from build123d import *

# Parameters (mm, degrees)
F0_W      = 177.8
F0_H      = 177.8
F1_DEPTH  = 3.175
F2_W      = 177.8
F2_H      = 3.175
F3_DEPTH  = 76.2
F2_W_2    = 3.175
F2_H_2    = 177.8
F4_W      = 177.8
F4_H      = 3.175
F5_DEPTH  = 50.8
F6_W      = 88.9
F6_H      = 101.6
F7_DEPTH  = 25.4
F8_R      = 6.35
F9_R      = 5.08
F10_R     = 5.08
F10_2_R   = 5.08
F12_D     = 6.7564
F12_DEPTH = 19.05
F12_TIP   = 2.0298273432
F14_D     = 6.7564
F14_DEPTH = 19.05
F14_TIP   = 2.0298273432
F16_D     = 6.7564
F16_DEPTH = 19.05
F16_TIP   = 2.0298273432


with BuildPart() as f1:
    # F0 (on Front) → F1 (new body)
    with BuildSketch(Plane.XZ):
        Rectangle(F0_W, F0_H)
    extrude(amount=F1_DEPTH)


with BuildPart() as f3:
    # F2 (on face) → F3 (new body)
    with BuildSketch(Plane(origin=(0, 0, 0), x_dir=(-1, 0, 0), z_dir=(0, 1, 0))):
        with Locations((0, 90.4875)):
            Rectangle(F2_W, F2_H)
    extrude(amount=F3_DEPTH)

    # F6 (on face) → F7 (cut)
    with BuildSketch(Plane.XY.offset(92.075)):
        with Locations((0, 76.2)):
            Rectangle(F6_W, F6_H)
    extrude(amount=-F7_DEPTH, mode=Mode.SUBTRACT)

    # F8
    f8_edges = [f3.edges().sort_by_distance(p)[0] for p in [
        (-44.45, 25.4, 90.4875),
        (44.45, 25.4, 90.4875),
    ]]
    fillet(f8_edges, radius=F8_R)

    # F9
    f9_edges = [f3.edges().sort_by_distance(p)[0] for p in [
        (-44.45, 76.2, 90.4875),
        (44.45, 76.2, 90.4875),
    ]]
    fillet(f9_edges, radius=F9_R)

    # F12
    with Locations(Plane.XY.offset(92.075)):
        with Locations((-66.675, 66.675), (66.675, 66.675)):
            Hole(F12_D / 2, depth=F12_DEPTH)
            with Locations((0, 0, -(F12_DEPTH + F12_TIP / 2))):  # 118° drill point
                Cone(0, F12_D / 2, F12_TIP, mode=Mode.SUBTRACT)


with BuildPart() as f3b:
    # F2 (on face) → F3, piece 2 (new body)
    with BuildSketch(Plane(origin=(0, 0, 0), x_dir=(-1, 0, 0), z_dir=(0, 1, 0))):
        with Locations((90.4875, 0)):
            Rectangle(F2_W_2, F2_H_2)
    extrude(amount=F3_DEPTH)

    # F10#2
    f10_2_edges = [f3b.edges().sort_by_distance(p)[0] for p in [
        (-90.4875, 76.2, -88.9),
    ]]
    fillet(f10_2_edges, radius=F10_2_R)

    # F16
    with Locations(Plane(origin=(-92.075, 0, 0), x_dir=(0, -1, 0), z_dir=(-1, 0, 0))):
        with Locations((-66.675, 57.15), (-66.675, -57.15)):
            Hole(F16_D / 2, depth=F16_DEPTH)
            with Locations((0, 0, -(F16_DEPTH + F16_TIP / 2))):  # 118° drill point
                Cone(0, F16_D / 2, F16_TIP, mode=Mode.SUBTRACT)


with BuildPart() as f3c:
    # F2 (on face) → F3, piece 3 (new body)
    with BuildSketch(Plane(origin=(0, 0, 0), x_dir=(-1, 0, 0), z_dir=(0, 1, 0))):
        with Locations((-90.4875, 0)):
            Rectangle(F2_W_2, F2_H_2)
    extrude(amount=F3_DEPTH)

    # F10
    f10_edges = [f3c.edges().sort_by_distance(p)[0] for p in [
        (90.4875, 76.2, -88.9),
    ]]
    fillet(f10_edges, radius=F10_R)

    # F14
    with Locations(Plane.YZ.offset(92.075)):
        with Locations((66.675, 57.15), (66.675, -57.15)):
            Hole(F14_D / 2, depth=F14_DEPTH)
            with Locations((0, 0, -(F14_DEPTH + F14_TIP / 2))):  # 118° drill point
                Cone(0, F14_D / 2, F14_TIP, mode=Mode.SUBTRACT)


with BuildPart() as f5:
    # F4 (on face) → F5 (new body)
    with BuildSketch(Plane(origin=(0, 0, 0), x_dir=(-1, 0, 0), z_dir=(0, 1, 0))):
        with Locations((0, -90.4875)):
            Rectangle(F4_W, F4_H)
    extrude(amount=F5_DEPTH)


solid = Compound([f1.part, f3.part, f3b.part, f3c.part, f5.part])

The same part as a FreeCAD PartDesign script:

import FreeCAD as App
import Part
import Sketcher
from FreeCAD import Vector
Q = App.Units.Quantity


def edges_at(feature, points):
    """Names of the edges that pass closest to the given points."""
    edges = feature.Shape.Edges
    near = lambda p: min(range(len(edges)), key=lambda i: edges[i].distToShape(Part.Vertex(*p))[0])
    return sorted({f"Edge{near(p) + 1}" for p in points})

doc = App.newDocument("Part")
body = doc.addObject("PartDesign::Body", "Body")

# Sketch on XZ plane
sketch1 = doc.addObject("Sketcher::SketchObject", "Sketch")
body.addObject(sketch1)
sketch1.AttachmentSupport = (doc.XZ_Plane, [""])
sketch1.MapMode = "FlatFace"
sketch1.addGeometry([
    Part.LineSegment(Vector(-89, 89, 0), Vector(-89, -89, 0)),
    Part.LineSegment(Vector(-89, -89, 0), Vector(89, -89, 0)),
    Part.LineSegment(Vector(89, -89, 0), Vector(89, 89, 0)),
    Part.LineSegment(Vector(89, 89, 0), Vector(-89, 89, 0)),
], False)
sketch1.addConstraint([
    Sketcher.Constraint("Coincident", 0, 2, 1, 1),
    Sketcher.Constraint("Coincident", 1, 2, 2, 1),
    Sketcher.Constraint("Coincident", 2, 2, 3, 1),
    Sketcher.Constraint("Coincident", 3, 2, 0, 1),
    Sketcher.Constraint("Vertical", 0),
    Sketcher.Constraint("Horizontal", 1),
    Sketcher.Constraint("Vertical", 2),
    Sketcher.Constraint("Horizontal", 3),
    Sketcher.Constraint("Symmetric", 0, 2, 2, 2, -1, 1),
    Sketcher.Constraint("Equal", 3, 0),
    Sketcher.Constraint("DistanceX", 1, 1, 1, 2, Q("7 in")),
])
pad1 = doc.addObject("PartDesign::Pad", "Pad")
body.addObject(pad1)
pad1.Profile = sketch1
pad1.Length = Q("0.125 in")
body2 = doc.addObject("PartDesign::Body", "Body001")

# Sketch on XZ plane
sketch2 = doc.addObject("Sketcher::SketchObject", "Sketch001")
body2.addObject(sketch2)
sketch2.AttachmentSupport = (doc.getObject("XZ_Plane001"), [""])
sketch2.MapMode = "FlatFace"
sketch2.addGeometry([
    Part.LineSegment(Vector(88.9, 92.1, 0), Vector(88.9, 88.9, 0)),
    Part.LineSegment(Vector(88.9, 88.9, 0), Vector(-88.9, 88.9, 0)),
    Part.LineSegment(Vector(-88.9, 88.9, 0), Vector(-88.9, 92.1, 0)),
    Part.LineSegment(Vector(-88.9, 92.1, 0), Vector(88.9, 92.1, 0)),
], False)
sketch2.addConstraint([
    Sketcher.Constraint("Coincident", 0, 2, 1, 1),
    Sketcher.Constraint("Coincident", 1, 2, 2, 1),
    Sketcher.Constraint("Coincident", 2, 2, 3, 1),
    Sketcher.Constraint("Coincident", 3, 2, 0, 1),
    Sketcher.Constraint("Vertical", 0),
    Sketcher.Constraint("Horizontal", 1),
    Sketcher.Constraint("Vertical", 2),
    Sketcher.Constraint("Horizontal", 3),
    Sketcher.Constraint("DistanceX", 1, 2, 1, 1, Q("7 in")),
    Sketcher.Constraint("DistanceX", -1, 1, 0, 2, Q("3.5 in")),
    Sketcher.Constraint("DistanceY", -1, 1, 0, 2, Q("3.5 in")),
    Sketcher.Constraint("DistanceY", 0, 2, 0, 1, Q("0.125 in")),
])
pad2 = doc.addObject("PartDesign::Pad", "Pad001")
body2.addObject(pad2)
pad2.Profile = sketch2
pad2.Length = Q("3 in")
pad2.Reversed = True

# Sketch on XY plane
sketch3 = doc.addObject("Sketcher::SketchObject", "Sketch002")
body2.addObject(sketch3)
sketch3.AttachmentSupport = (doc.getObject("XY_Plane001"), [""])
sketch3.MapMode = "FlatFace"
sketch3.AttachmentOffset = App.Placement(Vector(0, 0, 3.625 * 25.4), App.Rotation())
sketch3.addGeometry([
    Part.LineSegment(Vector(-44, 127, 0), Vector(-44, 25, 0)),
    Part.LineSegment(Vector(-44, 25, 0), Vector(44, 25, 0)),
    Part.LineSegment(Vector(44, 25, 0), Vector(44, 127, 0)),
    Part.LineSegment(Vector(44, 127, 0), Vector(-44, 127, 0)),
], False)
sketch3.addConstraint([
    Sketcher.Constraint("Coincident", 0, 2, 1, 1),
    Sketcher.Constraint("Coincident", 1, 2, 2, 1),
    Sketcher.Constraint("Coincident", 2, 2, 3, 1),
    Sketcher.Constraint("Coincident", 3, 2, 0, 1),
    Sketcher.Constraint("Vertical", 0),
    Sketcher.Constraint("Horizontal", 1),
    Sketcher.Constraint("Vertical", 2),
    Sketcher.Constraint("Horizontal", 3),
    Sketcher.Constraint("DistanceY", 0, 2, 0, 1, Q("4 in")),
    Sketcher.Constraint("DistanceX", 1, 1, 1, 2, Q("3.5 in")),
    Sketcher.Constraint("DistanceY", -1, 1, 0, 2, Q("1 in")),
    Sketcher.Constraint("DistanceX", 0, 2, -1, 1, Q("1.75 in")),
])
pocket1 = doc.addObject("PartDesign::Pocket", "Pocket")
body2.addObject(pocket1)
pocket1.Profile = sketch3
pocket1.Length = Q("1 in")
doc.recompute()

fillet = doc.addObject("PartDesign::Fillet", "Fillet")
body2.addObject(fillet)
fillet.Base = (pocket1, edges_at(pocket1, [(-44.45, 25.4, 90.487), (44.45, 25.4, 90.487)]))
fillet.Radius = Q("0.25 in")
doc.recompute()

fillet2 = doc.addObject("PartDesign::Fillet", "Fillet001")
body2.addObject(fillet2)
fillet2.Base = (fillet, edges_at(fillet, [(-44.45, 76.2, 90.487), (44.45, 76.2, 90.487)]))
fillet2.Radius = Q("0.2 in")

# Sketch on XY plane
sketch4 = doc.addObject("Sketcher::SketchObject", "Sketch003")
body2.addObject(sketch4)
sketch4.AttachmentSupport = (doc.getObject("XY_Plane001"), [""])
sketch4.MapMode = "FlatFace"
sketch4.AttachmentOffset = App.Placement(Vector(0, 0, 3.625 * 25.4), App.Rotation())
sketch4.addGeometry([
    Part.Circle(Vector(-66.7, 66.7, 0), Vector(0, 0, 1), 3.4),
    Part.Circle(Vector(66.7, 66.7, 0), Vector(0, 0, 1), 3.4),
], False)
sketch4.addConstraint([
    Sketcher.Constraint("Equal", 0, 1),
    Sketcher.Constraint("Symmetric", 0, 3, 1, 3, -2),
    Sketcher.Constraint("Diameter", 0, Q("0.266 in")),
    Sketcher.Constraint("DistanceX", 0, 3, 1, 3, Q("5.25 in")),
    Sketcher.Constraint("DistanceY", -1, 1, 0, 3, Q("2.625 in")),
])
doc.recompute()
hole = doc.addObject("PartDesign::Hole", "Hole")
body2.addObject(hole)
hole.Profile = sketch4
hole.ThreadType = "None"
hole.Diameter = Q("0.266 in")
hole.DepthType = "Dimension"
hole.Depth = Q("0.75 in")
hole.DrillPoint = "Angled"
hole.DrillPointAngle = 118
body3 = doc.addObject("PartDesign::Body", "Body002")

# Sketch on XZ plane
sketch5 = doc.addObject("Sketcher::SketchObject", "Sketch004")
body3.addObject(sketch5)
sketch5.AttachmentSupport = (doc.getObject("XZ_Plane002"), [""])
sketch5.MapMode = "FlatFace"
sketch5.addGeometry([
    Part.LineSegment(Vector(-88.9, 88.9, 0), Vector(-88.9, -88.9, 0)),
    Part.LineSegment(Vector(-88.9, -88.9, 0), Vector(-92.1, -88.9, 0)),
    Part.LineSegment(Vector(-92.1, -88.9, 0), Vector(-92.1, 88.9, 0)),
    Part.LineSegment(Vector(-92.1, 88.9, 0), Vector(-88.9, 88.9, 0)),
], False)
sketch5.addConstraint([
    Sketcher.Constraint("Coincident", 0, 2, 1, 1),
    Sketcher.Constraint("Coincident", 1, 2, 2, 1),
    Sketcher.Constraint("Coincident", 2, 2, 3, 1),
    Sketcher.Constraint("Coincident", 3, 2, 0, 1),
    Sketcher.Constraint("Vertical", 0),
    Sketcher.Constraint("Horizontal", 1),
    Sketcher.Constraint("Vertical", 2),
    Sketcher.Constraint("Horizontal", 3),
    Sketcher.Constraint("DistanceY", 0, 2, 0, 1, Q("7 in")),
    Sketcher.Constraint("DistanceX", 0, 2, -1, 1, Q("3.5 in")),
    Sketcher.Constraint("DistanceY", 0, 2, -1, 1, Q("3.5 in")),
    Sketcher.Constraint("DistanceX", 1, 2, 1, 1, Q("0.125 in")),
])
pad3 = doc.addObject("PartDesign::Pad", "Pad002")
body3.addObject(pad3)
pad3.Profile = sketch5
pad3.Length = Q("3 in")
pad3.Reversed = True
doc.recompute()

fillet3 = doc.addObject("PartDesign::Fillet", "Fillet002")
body3.addObject(fillet3)
fillet3.Base = (pad3, edges_at(pad3, [(-90.487, 76.2, -88.9)]))
fillet3.Radius = Q("0.2 in")

# Sketch on YZ plane
sketch6 = doc.addObject("Sketcher::SketchObject", "Sketch005")
body3.addObject(sketch6)
sketch6.AttachmentSupport = (doc.getObject("YZ_Plane002"), [""])
sketch6.MapMode = "FlatFace"
sketch6.AttachmentOffset = App.Placement(Vector(0, 0, -3.625 * 25.4), App.Rotation())
sketch6.addGeometry([
    Part.Circle(Vector(66.7, 57.1, 0), Vector(0, 0, 1), 3.4),
    Part.Circle(Vector(66.7, -57.1, 0), Vector(0, 0, 1), 3.4),
], False)
sketch6.addConstraint([
    Sketcher.Constraint("Equal", 0, 1),
    Sketcher.Constraint("Symmetric", 0, 3, 1, 3, -1),
    Sketcher.Constraint("Diameter", 0, Q("0.266 in")),
    Sketcher.Constraint("DistanceY", 1, 3, 0, 3, Q("4.5 in")),
    Sketcher.Constraint("DistanceX", -1, 1, 0, 3, Q("2.625 in")),
])
doc.recompute()
hole2 = doc.addObject("PartDesign::Hole", "Hole001")
body3.addObject(hole2)
hole2.Profile = sketch6
hole2.ThreadType = "None"
hole2.Diameter = Q("0.266 in")
hole2.DepthType = "Dimension"
hole2.Depth = Q("0.75 in")
hole2.DrillPoint = "Angled"
hole2.DrillPointAngle = 118
hole2.Reversed = True
body4 = doc.addObject("PartDesign::Body", "Body003")

# Sketch on XZ plane
sketch7 = doc.addObject("Sketcher::SketchObject", "Sketch006")
body4.addObject(sketch7)
sketch7.AttachmentSupport = (doc.getObject("XZ_Plane003"), [""])
sketch7.MapMode = "FlatFace"
sketch7.addGeometry([
    Part.LineSegment(Vector(92.1, 88.9, 0), Vector(92.1, -88.9, 0)),
    Part.LineSegment(Vector(92.1, -88.9, 0), Vector(88.9, -88.9, 0)),
    Part.LineSegment(Vector(88.9, -88.9, 0), Vector(88.9, 88.9, 0)),
    Part.LineSegment(Vector(88.9, 88.9, 0), Vector(92.1, 88.9, 0)),
], False)
sketch7.addConstraint([
    Sketcher.Constraint("Coincident", 0, 2, 1, 1),
    Sketcher.Constraint("Coincident", 1, 2, 2, 1),
    Sketcher.Constraint("Coincident", 2, 2, 3, 1),
    Sketcher.Constraint("Coincident", 3, 2, 0, 1),
    Sketcher.Constraint("Vertical", 0),
    Sketcher.Constraint("Horizontal", 1),
    Sketcher.Constraint("Vertical", 2),
    Sketcher.Constraint("Horizontal", 3),
    Sketcher.Constraint("DistanceY", 0, 2, 0, 1, Q("7 in")),
    Sketcher.Constraint("DistanceY", 0, 2, -1, 1, Q("3.5 in")),
    Sketcher.Constraint("DistanceX", -1, 1, 1, 2, Q("3.5 in")),
    Sketcher.Constraint("DistanceX", 1, 2, 1, 1, Q("0.125 in")),
])
pad4 = doc.addObject("PartDesign::Pad", "Pad003")
body4.addObject(pad4)
pad4.Profile = sketch7
pad4.Length = Q("3 in")
pad4.Reversed = True
doc.recompute()

fillet4 = doc.addObject("PartDesign::Fillet", "Fillet003")
body4.addObject(fillet4)
fillet4.Base = (pad4, edges_at(pad4, [(90.487, 76.2, -88.9)]))
fillet4.Radius = Q("0.2 in")

# Sketch on YZ plane
sketch8 = doc.addObject("Sketcher::SketchObject", "Sketch007")
body4.addObject(sketch8)
sketch8.AttachmentSupport = (doc.getObject("YZ_Plane003"), [""])
sketch8.MapMode = "FlatFace"
sketch8.AttachmentOffset = App.Placement(Vector(0, 0, 3.625 * 25.4), App.Rotation())
sketch8.addGeometry([
    Part.Circle(Vector(66.7, 57.1, 0), Vector(0, 0, 1), 3.4),
    Part.Circle(Vector(66.7, -57.1, 0), Vector(0, 0, 1), 3.4),
], False)
sketch8.addConstraint([
    Sketcher.Constraint("Equal", 0, 1),
    Sketcher.Constraint("Symmetric", 0, 3, 1, 3, -1),
    Sketcher.Constraint("Diameter", 0, Q("0.266 in")),
    Sketcher.Constraint("DistanceY", 1, 3, 0, 3, Q("4.5 in")),
    Sketcher.Constraint("DistanceX", -1, 1, 0, 3, Q("2.625 in")),
])
doc.recompute()
hole3 = doc.addObject("PartDesign::Hole", "Hole002")
body4.addObject(hole3)
hole3.Profile = sketch8
hole3.ThreadType = "None"
hole3.Diameter = Q("0.266 in")
hole3.DepthType = "Dimension"
hole3.Depth = Q("0.75 in")
hole3.DrillPoint = "Angled"
hole3.DrillPointAngle = 118
body5 = doc.addObject("PartDesign::Body", "Body004")

# Sketch on XZ plane
sketch9 = doc.addObject("Sketcher::SketchObject", "Sketch008")
body5.addObject(sketch9)
sketch9.AttachmentSupport = (doc.getObject("XZ_Plane004"), [""])
sketch9.MapMode = "FlatFace"
sketch9.addGeometry([
    Part.LineSegment(Vector(88.9, -88.9, 0), Vector(88.9, -92.1, 0)),
    Part.LineSegment(Vector(88.9, -92.1, 0), Vector(-88.9, -92.1, 0)),
    Part.LineSegment(Vector(-88.9, -92.1, 0), Vector(-88.9, -88.9, 0)),
    Part.LineSegment(Vector(-88.9, -88.9, 0), Vector(88.9, -88.9, 0)),
], False)
sketch9.addConstraint([
    Sketcher.Constraint("Coincident", 0, 2, 1, 1),
    Sketcher.Constraint("Coincident", 1, 2, 2, 1),
    Sketcher.Constraint("Coincident", 2, 2, 3, 1),
    Sketcher.Constraint("Coincident", 3, 2, 0, 1),
    Sketcher.Constraint("Vertical", 0),
    Sketcher.Constraint("Horizontal", 1),
    Sketcher.Constraint("Vertical", 2),
    Sketcher.Constraint("Horizontal", 3),
    Sketcher.Constraint("DistanceX", 1, 2, 1, 1, Q("7 in")),
    Sketcher.Constraint("DistanceX", -1, 1, 0, 2, Q("3.5 in")),
    Sketcher.Constraint("DistanceY", 2, 2, -1, 1, Q("3.5 in")),
    Sketcher.Constraint("DistanceY", 0, 2, 0, 1, Q("0.125 in")),
])
pad5 = doc.addObject("PartDesign::Pad", "Pad004")
body5.addObject(pad5)
pad5.Profile = sketch9
pad5.Length = Q("2 in")
pad5.Reversed = True

doc.recompute()
